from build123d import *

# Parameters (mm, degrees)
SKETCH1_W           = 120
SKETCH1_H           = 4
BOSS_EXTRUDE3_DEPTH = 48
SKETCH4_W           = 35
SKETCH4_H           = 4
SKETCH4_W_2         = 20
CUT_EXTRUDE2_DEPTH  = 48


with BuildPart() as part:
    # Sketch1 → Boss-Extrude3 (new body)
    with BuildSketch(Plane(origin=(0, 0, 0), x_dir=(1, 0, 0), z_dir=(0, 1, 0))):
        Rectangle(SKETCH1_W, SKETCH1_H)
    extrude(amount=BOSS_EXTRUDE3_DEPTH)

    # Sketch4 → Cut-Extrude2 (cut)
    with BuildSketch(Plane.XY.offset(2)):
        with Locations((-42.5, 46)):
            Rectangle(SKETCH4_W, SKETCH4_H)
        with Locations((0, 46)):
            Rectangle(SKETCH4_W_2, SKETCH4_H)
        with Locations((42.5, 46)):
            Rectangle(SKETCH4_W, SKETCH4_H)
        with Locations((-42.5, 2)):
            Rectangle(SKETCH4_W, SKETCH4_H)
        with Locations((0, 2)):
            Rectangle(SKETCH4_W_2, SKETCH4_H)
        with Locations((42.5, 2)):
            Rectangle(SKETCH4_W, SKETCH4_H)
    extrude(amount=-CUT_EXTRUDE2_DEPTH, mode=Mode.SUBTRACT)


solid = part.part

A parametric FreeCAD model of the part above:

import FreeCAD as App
import Part
import Sketcher
from FreeCAD import Vector
Q = App.Units.Quantity

doc = App.newDocument("Part")
body = doc.addObject("PartDesign::Body", "Body")

# Sketch on XZ plane
sketch1 = body.newObject("Sketcher::SketchObject", "Sketch")
sketch1.AttachmentSupport = (doc.getObject("XZ_Plane"), [""])
sketch1.MapMode = "FlatFace"
sketch1.addGeometry(Part.LineSegment(Vector(-60, -2, 0), Vector(-60, 2, 0)), False)
sketch1.addGeometry(Part.LineSegment(Vector(-60, 2, 0), Vector(60, 2, 0)), False)
sketch1.addGeometry(Part.LineSegment(Vector(60, 2, 0), Vector(60, -2, 0)), False)
sketch1.addGeometry(Part.LineSegment(Vector(60, -2, 0), Vector(-60, -2, 0)), False)
sketch1.addConstraint(Sketcher.Constraint("Coincident", 0, 2, 1, 1))
sketch1.addConstraint(Sketcher.Constraint("Coincident", 1, 2, 2, 1))
sketch1.addConstraint(Sketcher.Constraint("Coincident", 2, 2, 3, 1))
sketch1.addConstraint(Sketcher.Constraint("Coincident", 3, 2, 0, 1))
sketch1.addConstraint(Sketcher.Constraint("Vertical", 0))
sketch1.addConstraint(Sketcher.Constraint("Horizontal", 1))
sketch1.addConstraint(Sketcher.Constraint("Vertical", 2))
sketch1.addConstraint(Sketcher.Constraint("Horizontal", 3))
sketch1.addConstraint(Sketcher.Constraint("Symmetric", 0, 2, 2, 2, -1, 1))
sketch1.addConstraint(Sketcher.Constraint("DistanceX", 1, 1, 1, 2, Q("120 mm")))
sketch1.addConstraint(Sketcher.Constraint("DistanceY", 0, 1, 0, 2, Q("4 mm")))
pad1 = body.newObject("PartDesign::Pad", "Pad")
pad1.Profile = sketch1
pad1.Length = 48
pad1.Reversed = True

# Sketch on XY plane
sketch2 = body.newObject("Sketcher::SketchObject", "Sketch001")
sketch2.AttachmentSupport = (doc.getObject("XY_Plane"), [""])
sketch2.MapMode = "FlatFace"
sketch2.AttachmentOffset = App.Placement(Vector(0, 0, 2), App.Rotation())
sketch2.addGeometry(Part.LineSegment(Vector(-60, 48, 0), Vector(-60, 44, 0)), False)
sketch2.addGeometry(Part.LineSegment(Vector(-60, 44, 0), Vector(-25, 44, 0)), False)
sketch2.addGeometry(Part.LineSegment(Vector(-25, 44, 0), Vector(-25, 48, 0)), False)
sketch2.addGeometry(Part.LineSegment(Vector(-25, 48, 0), Vector(-60, 48, 0)), False)
sketch2.addGeometry(Part.LineSegment(Vector(-10, 48, 0), Vector(-10, 44, 0)), False)
sketch2.addGeometry(Part.LineSegment(Vector(-10, 44, 0), Vector(10, 44, 0)), False)
sketch2.addGeometry(Part.LineSegment(Vector(10, 44, 0), Vector(10, 48, 0)), False)
sketch2.addGeometry(Part.LineSegment(Vector(10, 48, 0), Vector(-10, 48, 0)), False)
sketch2.addGeometry(Part.LineSegment(Vector(25, 48, 0), Vector(25, 44, 0)), False)
sketch2.addGeometry(Part.LineSegment(Vector(25, 44, 0), Vector(60, 44, 0)), False)
sketch2.addGeometry(Part.LineSegment(Vector(60, 44, 0), Vector(60, 48, 0)), False)
sketch2.addGeometry(Part.LineSegment(Vector(60, 48, 0), Vector(25, 48, 0)), False)
sketch2.addGeometry(Part.LineSegment(Vector(-60, 4, 0), Vector(-60, 0, 0)), False)
sketch2.addGeometry(Part.LineSegment(Vector(-60, 0, 0), Vector(-25, 0, 0)), False)
sketch2.addGeometry(Part.LineSegment(Vector(-25, 0, 0), Vector(-25, 4, 0)), False)
sketch2.addGeometry(Part.LineSegment(Vector(-25, 4, 0), Vector(-60, 4, 0)), False)
sketch2.addGeometry(Part.LineSegment(Vector(-10, 4, 0), Vector(-10, 0, 0)), False)
sketch2.addGeometry(Part.LineSegment(Vector(-10, 0, 0), Vector(10, 0, 0)), False)
sketch2.addGeometry(Part.LineSegment(Vector(10, 0, 0), Vector(10, 4, 0)), False)
sketch2.addGeometry(Part.LineSegment(Vector(10, 4, 0), Vector(-10, 4, 0)), False)
sketch2.addGeometry(Part.LineSegment(Vector(25, 4, 0), Vector(25, 0, 0)), False)
sketch2.addGeometry(Part.LineSegment(Vector(25, 0, 0), Vector(60, 0, 0)), False)
sketch2.addGeometry(Part.LineSegment(Vector(60, 0, 0), Vector(60, 4, 0)), False)
sketch2.addGeometry(Part.LineSegment(Vector(60, 4, 0), Vector(25, 4, 0)), False)
sketch2.addConstraint(Sketcher.Constraint("Coincident", 0, 2, 1, 1))
sketch2.addConstraint(Sketcher.Constraint("Coincident", 1, 2, 2, 1))
sketch2.addConstraint(Sketcher.Constraint("Coincident", 2, 2, 3, 1))
sketch2.addConstraint(Sketcher.Constraint("Coincident", 3, 2, 0, 1))
sketch2.addConstraint(Sketcher.Constraint("Coincident", 4, 2, 5, 1))
sketch2.addConstraint(Sketcher.Constraint("Coincident", 5, 2, 6, 1))
sketch2.addConstraint(Sketcher.Constraint("Coincident", 6, 2, 7, 1))
sketch2.addConstraint(Sketcher.Constraint("Coincident", 7, 2, 4, 1))
sketch2.addConstraint(Sketcher.Constraint("Coincident", 8, 2, 9, 1))
sketch2.addConstraint(Sketcher.Constraint("Coincident", 9, 2, 10, 1))
sketch2.addConstraint(Sketcher.Constraint("Coincident", 10, 2, 11, 1))
sketch2.addConstraint(Sketcher.Constraint("Coincident", 11, 2, 8, 1))
sketch2.addConstraint(Sketcher.Constraint("Coincident", 12, 2, 13, 1))
sketch2.addConstraint(Sketcher.Constraint("Coincident", 13, 2, 14, 1))
sketch2.addConstraint(Sketcher.Constraint("Coincident", 14, 2, 15, 1))
sketch2.addConstraint(Sketcher.Constraint("Coincident", 15, 2, 12, 1))
sketch2.addConstraint(Sketcher.Constraint("Coincident", 16, 2, 17, 1))
sketch2.addConstraint(Sketcher.Constraint("Coincident", 17, 2, 18, 1))
sketch2.addConstraint(Sketcher.Constraint("Coincident", 18, 2, 19, 1))
sketch2.addConstraint(Sketcher.Constraint("Coincident", 19, 2, 16, 1))
sketch2.addConstraint(Sketcher.Constraint("Coincident", 20, 2, 21, 1))
sketch2.addConstraint(Sketcher.Constraint("Coincident", 21, 2, 22, 1))
sketch2.addConstraint(Sketcher.Constraint("Coincident", 22, 2, 23, 1))
sketch2.addConstraint(Sketcher.Constraint("Coincident", 23, 2, 20, 1))
sketch2.addConstraint(Sketcher.Constraint("Vertical", 0))
sketch2.addConstraint(Sketcher.Constraint("Horizontal", 1))
sketch2.addConstraint(Sketcher.Constraint("Vertical", 2))
sketch2.addConstraint(Sketcher.Constraint("Horizontal", 3))
sketch2.addConstraint(Sketcher.Constraint("Vertical", 4))
sketch2.addConstraint(Sketcher.Constraint("Horizontal", 5))
sketch2.addConstraint(Sketcher.Constraint("Vertical", 6))
sketch2.addConstraint(Sketcher.Constraint("Horizontal", 7))
sketch2.addConstraint(Sketcher.Constraint("Vertical", 8))
sketch2.addConstraint(Sketcher.Constraint("Horizontal", 9))
sketch2.addConstraint(Sketcher.Constraint("Vertical", 10))
sketch2.addConstraint(Sketcher.Constraint("Horizontal", 11))
sketch2.addConstraint(Sketcher.Constraint("Vertical", 12))
sketch2.addConstraint(Sketcher.Constraint("Horizontal", 13))
sketch2.addConstraint(Sketcher.Constraint("Vertical", 14))
sketch2.addConstraint(Sketcher.Constraint("Horizontal", 15))
sketch2.addConstraint(Sketcher.Constraint("Vertical", 16))
sketch2.addConstraint(Sketcher.Constraint("Horizontal", 17))
sketch2.addConstraint(Sketcher.Constraint("Vertical", 18))
sketch2.addConstraint(Sketcher.Constraint("Horizontal", 19))
sketch2.addConstraint(Sketcher.Constraint("Vertical", 20))
sketch2.addConstraint(Sketcher.Constraint("Horizontal", 21))
sketch2.addConstraint(Sketcher.Constraint("Vertical", 22))
sketch2.addConstraint(Sketcher.Constraint("Horizontal", 23))
sketch2.addConstraint(Sketcher.Constraint("Symmetric", 16, 2, 17, 2, -1, 1))
sketch2.addConstraint(Sketcher.Constraint("Symmetric", 13, 2, 20, 2, -1, 1))
sketch2.addConstraint(Sketcher.Constraint("Symmetric", 1, 2, 8, 2, -2))
sketch2.addConstraint(Sketcher.Constraint("Symmetric", 3, 2, 10, 2, -2))
sketch2.addConstraint(Sketcher.Constraint("Symmetric", 12, 2, 21, 2, -2))
sketch2.addConstraint(Sketcher.Constraint("Horizontal", 1, 2, 4, 2))
sketch2.addConstraint(Sketcher.Constraint("Horizontal", 3, 2, 6, 2))
sketch2.addConstraint(Sketcher.Constraint("Horizontal", 15, 2, 18, 2))
sketch2.addConstraint(Sketcher.Constraint("Horizontal", 19, 2, 22, 2))
sketch2.addConstraint(Sketcher.Constraint("Vertical", 3, 2, 12, 2))
sketch2.addConstraint(Sketcher.Constraint("Vertical", 2, 2, 13, 2))
sketch2.addConstraint(Sketcher.Constraint("Vertical", 7, 2, 16, 2))
sketch2.addConstraint(Sketcher.Constraint("Vertical", 6, 2, 17, 2))
sketch2.addConstraint(Sketcher.Constraint("Equal", 10, 12))
sketch2.addConstraint(Sketcher.Constraint("DistanceX", 1, 1, 1, 2, Q("35 mm")))
sketch2.addConstraint(Sketcher.Constraint("DistanceX", 5, 1, 5, 2, Q("20 mm")))
sketch2.addConstraint(Sketcher.Constraint("DistanceY", 0, 2, 0, 1, Q("4 mm")))
sketch2.addConstraint(Sketcher.Constraint("DistanceX", 0, 2, -1, 1, Q("60 mm")))
sketch2.addConstraint(Sketcher.Constraint("DistanceY", -1, 1, 0, 2, Q("44 mm")))
pocket1 = body.newObject("PartDesign::Pocket", "Pocket")
pocket1.Profile = sketch2
pocket1.Length = 48

doc.recompute()
